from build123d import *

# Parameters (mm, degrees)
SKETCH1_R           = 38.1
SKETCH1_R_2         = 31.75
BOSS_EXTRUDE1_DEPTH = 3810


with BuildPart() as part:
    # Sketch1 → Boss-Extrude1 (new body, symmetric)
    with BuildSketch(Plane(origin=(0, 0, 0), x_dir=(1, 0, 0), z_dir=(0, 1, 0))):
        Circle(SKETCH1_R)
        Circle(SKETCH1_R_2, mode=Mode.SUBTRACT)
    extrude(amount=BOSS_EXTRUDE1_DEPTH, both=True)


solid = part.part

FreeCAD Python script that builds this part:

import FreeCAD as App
import Part
import Sketcher
from FreeCAD import Vector
Q = App.Units.Quantity

doc = App.newDocument("Part")
body = doc.addObject("PartDesign::Body", "Body")

# Sketch on XZ plane
sketch1 = body.newObject("Sketcher::SketchObject", "Sketch")
sketch1.AttachmentSupport = (doc.getObject("XZ_Plane"), [""])
sketch1.MapMode = "FlatFace"
sketch1.addGeometry([
    Part.Circle(Vector(0, 0, 0), Vector(0, 0, 1), 38),
    Part.Circle(Vector(0, 0, 0), Vector(0, 0, 1), 32),
], False)
sketch1.addConstraint([
    Sketcher.Constraint("Coincident", 0, 3, -1, 1),
    Sketcher.Constraint("Coincident", 1, 3, -1, 1),
    Sketcher.Constraint("Diameter", 0, Q("3 in")),
    Sketcher.Constraint("Diameter", 1, Q("2.5 in")),
])
pad1 = body.newObject("PartDesign::Pad", "Pad")
pad1.Profile = sketch1
pad1.Length = Q("300 in")
pad1.Midplane = True

doc.recompute()
